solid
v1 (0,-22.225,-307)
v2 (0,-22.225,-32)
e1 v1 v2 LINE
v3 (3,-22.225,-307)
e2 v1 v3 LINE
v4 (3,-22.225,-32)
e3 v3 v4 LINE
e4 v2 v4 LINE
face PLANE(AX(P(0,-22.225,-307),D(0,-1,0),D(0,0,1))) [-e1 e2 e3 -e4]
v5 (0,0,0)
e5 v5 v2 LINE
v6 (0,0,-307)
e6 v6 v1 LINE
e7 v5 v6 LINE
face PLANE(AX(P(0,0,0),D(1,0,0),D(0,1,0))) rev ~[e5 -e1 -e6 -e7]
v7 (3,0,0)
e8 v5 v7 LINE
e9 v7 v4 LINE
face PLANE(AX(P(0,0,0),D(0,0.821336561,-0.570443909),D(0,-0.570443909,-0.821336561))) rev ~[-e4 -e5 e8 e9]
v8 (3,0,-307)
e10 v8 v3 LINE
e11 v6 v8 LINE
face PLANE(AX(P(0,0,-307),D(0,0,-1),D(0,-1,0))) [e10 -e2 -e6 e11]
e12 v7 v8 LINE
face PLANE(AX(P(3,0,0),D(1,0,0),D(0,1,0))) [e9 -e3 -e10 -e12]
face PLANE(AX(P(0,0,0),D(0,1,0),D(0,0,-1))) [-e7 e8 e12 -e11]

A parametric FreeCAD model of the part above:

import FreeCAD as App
import Part
import Sketcher

doc = App.newDocument("Part")
params = doc.addObject("Spreadsheet::Sheet", "Params")
for row, (alias, value) in enumerate([
    ("sketch1_height", "307 mm"),
    ("sketch1_height2", "275 mm"),
    ("pad1_length", "3 mm"),
], start=1):
    params.set(f"A{row}", alias)
    params.set(f"B{row}", "=" + value)
    params.setAlias(f"B{row}", alias)

body = doc.addObject("PartDesign::Body", "Body")

sketch1 = body.newObject("Sketcher::SketchObject", "Sketch")
sketch1.AttachmentSupport = (doc.getObject("YZ_Plane"), [""])
sketch1.MapMode = "FlatFace"
sketch1.addGeometry(Part.LineSegment(App.Vector(0, -307, 0), App.Vector(0, 0, 0)), False)
sketch1.addGeometry(Part.LineSegment(App.Vector(0, 0, 0), App.Vector(-22, -32, 0)), False)
sketch1.addGeometry(Part.LineSegment(App.Vector(-22, -32, 0), App.Vector(-22, -307, 0)), False)
sketch1.addGeometry(Part.LineSegment(App.Vector(-22, -307, 0), App.Vector(0, -307, 0)), False)
sketch1.addConstraint(Sketcher.Constraint("Coincident", 0, 2, 1, 1))
sketch1.addConstraint(Sketcher.Constraint("Coincident", 1, 2, 2, 1))
sketch1.addConstraint(Sketcher.Constraint("Coincident", 2, 2, 3, 1))
sketch1.addConstraint(Sketcher.Constraint("Coincident", 3, 2, 0, 1))
sketch1.addConstraint(Sketcher.Constraint("Vertical", 0))
sketch1.addConstraint(Sketcher.Constraint("Vertical", 2))
sketch1.addConstraint(Sketcher.Constraint("Horizontal", 3))
sketch1.addConstraint(Sketcher.Constraint("Coincident", 0, 2, -1, 1))
sketch1.addConstraint(Sketcher.Constraint("DistanceY", 0, 1, 0, 2, 307.0))
sketch1.addConstraint(Sketcher.Constraint("DistanceY", 2, 2, 2, 1, 275.0))
sketch1.addConstraint(Sketcher.Constraint("DistanceX", 3, 1, 3, 2, 22.225))
sketch1.setExpression("Constraints[8]", "Params.sketch1_height")
sketch1.setExpression("Constraints[9]", "Params.sketch1_height2")
pad1 = body.newObject("PartDesign::Pad", "Pad")
pad1.Profile = sketch1
pad1.setExpression("Length", "Params.pad1_length")

doc.recompute()
